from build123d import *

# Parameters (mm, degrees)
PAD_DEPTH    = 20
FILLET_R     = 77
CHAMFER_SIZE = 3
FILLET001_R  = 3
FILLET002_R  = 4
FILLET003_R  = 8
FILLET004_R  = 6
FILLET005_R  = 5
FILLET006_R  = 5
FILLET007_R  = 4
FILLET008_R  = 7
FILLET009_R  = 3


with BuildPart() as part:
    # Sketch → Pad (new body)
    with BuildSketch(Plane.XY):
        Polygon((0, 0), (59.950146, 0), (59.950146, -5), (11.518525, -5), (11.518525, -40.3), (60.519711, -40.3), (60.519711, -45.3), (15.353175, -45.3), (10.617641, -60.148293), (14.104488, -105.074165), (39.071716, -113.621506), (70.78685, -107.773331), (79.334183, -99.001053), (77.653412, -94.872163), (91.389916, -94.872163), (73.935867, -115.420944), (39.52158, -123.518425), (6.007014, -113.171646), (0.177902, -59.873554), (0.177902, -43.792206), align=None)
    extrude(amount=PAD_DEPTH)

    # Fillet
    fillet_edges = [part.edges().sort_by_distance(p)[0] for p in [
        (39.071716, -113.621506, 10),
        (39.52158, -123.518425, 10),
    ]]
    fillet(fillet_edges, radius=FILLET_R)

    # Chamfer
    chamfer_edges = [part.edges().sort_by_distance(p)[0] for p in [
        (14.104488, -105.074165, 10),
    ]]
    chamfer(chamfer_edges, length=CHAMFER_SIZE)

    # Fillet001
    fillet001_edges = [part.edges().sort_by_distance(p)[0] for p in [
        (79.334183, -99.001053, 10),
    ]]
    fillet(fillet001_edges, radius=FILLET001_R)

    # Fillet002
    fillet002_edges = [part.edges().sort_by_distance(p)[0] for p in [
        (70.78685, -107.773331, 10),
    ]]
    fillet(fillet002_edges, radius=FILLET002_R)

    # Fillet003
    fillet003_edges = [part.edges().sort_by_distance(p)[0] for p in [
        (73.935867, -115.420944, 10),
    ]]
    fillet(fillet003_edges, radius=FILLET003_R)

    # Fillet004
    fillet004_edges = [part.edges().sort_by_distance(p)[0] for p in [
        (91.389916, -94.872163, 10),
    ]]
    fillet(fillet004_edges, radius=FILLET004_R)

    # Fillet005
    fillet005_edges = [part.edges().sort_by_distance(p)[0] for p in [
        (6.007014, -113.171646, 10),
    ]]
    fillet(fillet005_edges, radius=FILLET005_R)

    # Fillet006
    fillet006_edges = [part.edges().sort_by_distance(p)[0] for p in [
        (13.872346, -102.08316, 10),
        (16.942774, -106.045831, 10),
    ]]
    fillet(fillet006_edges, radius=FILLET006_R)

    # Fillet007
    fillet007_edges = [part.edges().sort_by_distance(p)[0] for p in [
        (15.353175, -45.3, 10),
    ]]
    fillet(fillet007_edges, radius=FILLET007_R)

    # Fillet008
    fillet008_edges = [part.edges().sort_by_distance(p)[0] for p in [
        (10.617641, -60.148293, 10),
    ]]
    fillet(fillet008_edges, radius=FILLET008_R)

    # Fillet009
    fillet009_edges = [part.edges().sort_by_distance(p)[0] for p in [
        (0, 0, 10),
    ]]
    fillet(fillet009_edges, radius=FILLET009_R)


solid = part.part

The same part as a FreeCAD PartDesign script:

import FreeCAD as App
import Part
import Sketcher
from FreeCAD import Vector


def edges_at(feature, points):
    """Names of the edges that pass closest to the given points."""
    edges = feature.Shape.Edges
    near = lambda p: min(range(len(edges)), key=lambda i: edges[i].distToShape(Part.Vertex(*p))[0])
    return sorted({f"Edge{near(p) + 1}" for p in points})


def add_polygon(sketch, points):
    """Adds a closed chain of lines whose ends are joined by coincident constraints."""
    first, n = sketch.GeometryCount, len(points)
    for a, b in zip(points, points[1:] + points[:1]):
        sketch.addGeometry(Part.LineSegment(App.Vector(*a, 0), App.Vector(*b, 0)), False)
    for i in range(n):
        sketch.addConstraint(Sketcher.Constraint("Coincident", first + i, 2, first + (i + 1) % n, 1))

doc = App.newDocument("Part")
body = doc.addObject("PartDesign::Body", "Body")

sketch1 = doc.addObject("Sketcher::SketchObject", "Sketch")
body.addObject(sketch1)
sketch1.AttachmentSupport = (doc.XY_Plane, [""])
sketch1.MapMode = "FlatFace"
add_polygon(sketch1, [(60, 0), (0, 0), (0.2, -43.8), (0.2, -59.9), (6, -113.2), (39.5, -123.5), (73.9, -115.4), (91.4, -94.9), (77.7, -94.9), (79.3, -99), (70.8, -107.8), (39.1, -113.6), (14.1, -105.1), (10.6, -60.1), (15.4, -45.3), (60.5, -45.3), (60.5, -40.3), (11.5, -40.3), (11.5, -5), (60, -5)])
sketch1.addConstraint([
    Sketcher.Constraint("Horizontal", 0),
    Sketcher.Constraint("Vertical", 2),
    Sketcher.Constraint("Horizontal", 7),
    Sketcher.Constraint("Horizontal", 14),
    Sketcher.Constraint("Vertical", 15),
    Sketcher.Constraint("Horizontal", 16),
    Sketcher.Constraint("Vertical", 17),
    Sketcher.Constraint("Horizontal", 18),
    Sketcher.Constraint("Vertical", 19),
    Sketcher.Constraint("Coincident", 0, 2, -1, 1),
    Sketcher.Constraint("Equal", 15, 19),
    Sketcher.Constraint("DistanceY", 15, 1, 15, 2, 5.0),
    Sketcher.Constraint("DistanceY", 17, 1, 17, 2, 35.3),
    Sketcher.Constraint("Distance", 5, 35.354099),
    Sketcher.Constraint("DistanceX", 18, 1, 18, 2, 48.431621),
    Sketcher.Constraint("DistanceY", 5, 2, 3, 2, 2.249298),
    Sketcher.Constraint("DistanceX", 3, 2, 6, 2, 85.382902),
    Sketcher.Constraint("DistanceX", 3, 2, 7, 2, 71.646398),
    Sketcher.Constraint("DistanceX", 14, 2, 7, 2, 17.133701),
    Sketcher.Constraint("Distance", 10, 32.24982),
    Sketcher.Constraint("Distance", 11, 26.389762),
    Sketcher.Constraint("Distance", 12, 45.060982),
    Sketcher.Constraint("DistanceX", 0, 2, 0, 1, 59.950146),
    Sketcher.Constraint("DistanceX", 14, 1, 14, 2, 45.166536),
    Sketcher.Constraint("DistanceX", 16, 2, 16, 1, 49.001186),
    Sketcher.Constraint("DistanceY", 2, 2, 2, 1, 16.081348),
    Sketcher.Constraint("DistanceX", -1, 1, 4, 2, 39.52158),
    Sketcher.Constraint("DistanceX", -1, 1, 9, 2, 70.78685),
    Sketcher.Constraint("DistanceY", 9, 2, -1, 1, 107.773331),
    Sketcher.Constraint("DistanceX", -1, 1, 12, 2, 10.617641),
    Sketcher.Constraint("DistanceY", 3, 2, 2, 2, 53.298092),
    Sketcher.Constraint("DistanceY", 4, 2, 3, 2, 10.346779),
    Sketcher.Constraint("DistanceY", 5, 2, 6, 2, 20.548781),
    Sketcher.Constraint("DistanceX", 2, 2, 7, 2, 77.47551),
    Sketcher.Constraint("DistanceX", 7, 2, 8, 2, 1.680771),
    Sketcher.Constraint("DistanceY", 8, 2, 7, 2, 4.12889),
    Sketcher.Constraint("DistanceY", 4, 2, 10, 2, 9.896919),
    Sketcher.Constraint("DistanceX", 10, 2, 5, 2, 34.864151),
    Sketcher.Constraint("DistanceY", 3, 2, 11, 2, 8.097481),
])
pad1 = doc.addObject("PartDesign::Pad", "Pad")
body.addObject(pad1)
pad1.Profile = sketch1
pad1.Length = 20
doc.recompute()

fillet = doc.addObject("PartDesign::Fillet", "Fillet")
body.addObject(fillet)
fillet.Base = (pad1, edges_at(pad1, [(39.072, -113.622, 10), (39.522, -123.518, 10)]))
fillet.Radius = 77
doc.recompute()

chamfer = doc.addObject("PartDesign::Chamfer", "Chamfer")
body.addObject(chamfer)
chamfer.Base = (fillet, edges_at(fillet, [(14.104, -105.074, 10)]))
chamfer.Size = 3
doc.recompute()

fillet2 = doc.addObject("PartDesign::Fillet", "Fillet001")
body.addObject(fillet2)
fillet2.Base = (chamfer, edges_at(chamfer, [(79.334, -99.001, 10)]))
fillet2.Radius = 3
doc.recompute()

fillet3 = doc.addObject("PartDesign::Fillet", "Fillet002")
body.addObject(fillet3)
fillet3.Base = (fillet2, edges_at(fillet2, [(70.787, -107.773, 10)]))
fillet3.Radius = 4
doc.recompute()

fillet4 = doc.addObject("PartDesign::Fillet", "Fillet003")
body.addObject(fillet4)
fillet4.Base = (fillet3, edges_at(fillet3, [(73.936, -115.421, 10)]))
fillet4.Radius = 8
doc.recompute()

fillet5 = doc.addObject("PartDesign::Fillet", "Fillet004")
body.addObject(fillet5)
fillet5.Base = (fillet4, edges_at(fillet4, [(91.39, -94.872, 10)]))
fillet5.Radius = 6
doc.recompute()

fillet6 = doc.addObject("PartDesign::Fillet", "Fillet005")
body.addObject(fillet6)
fillet6.Base = (fillet5, edges_at(fillet5, [(6.007, -113.172, 10)]))
fillet6.Radius = 5
doc.recompute()

fillet7 = doc.addObject("PartDesign::Fillet", "Fillet006")
body.addObject(fillet7)
fillet7.Base = (fillet6, edges_at(fillet6, [(13.872, -102.083, 10), (16.943, -106.046, 10)]))
fillet7.Radius = 5
doc.recompute()

fillet8 = doc.addObject("PartDesign::Fillet", "Fillet007")
body.addObject(fillet8)
fillet8.Base = (fillet7, edges_at(fillet7, [(15.353, -45.3, 10)]))
fillet8.Radius = 4
doc.recompute()

fillet9 = doc.addObject("PartDesign::Fillet", "Fillet008")
body.addObject(fillet9)
fillet9.Base = (fillet8, edges_at(fillet8, [(10.618, -60.148, 10)]))
fillet9.Radius = 7
doc.recompute()

fillet10 = doc.addObject("PartDesign::Fillet", "Fillet009")
body.addObject(fillet10)
fillet10.Base = (fillet9, edges_at(fillet9, [(0, 0, 10)]))
fillet10.Radius = 3

doc.recompute()
